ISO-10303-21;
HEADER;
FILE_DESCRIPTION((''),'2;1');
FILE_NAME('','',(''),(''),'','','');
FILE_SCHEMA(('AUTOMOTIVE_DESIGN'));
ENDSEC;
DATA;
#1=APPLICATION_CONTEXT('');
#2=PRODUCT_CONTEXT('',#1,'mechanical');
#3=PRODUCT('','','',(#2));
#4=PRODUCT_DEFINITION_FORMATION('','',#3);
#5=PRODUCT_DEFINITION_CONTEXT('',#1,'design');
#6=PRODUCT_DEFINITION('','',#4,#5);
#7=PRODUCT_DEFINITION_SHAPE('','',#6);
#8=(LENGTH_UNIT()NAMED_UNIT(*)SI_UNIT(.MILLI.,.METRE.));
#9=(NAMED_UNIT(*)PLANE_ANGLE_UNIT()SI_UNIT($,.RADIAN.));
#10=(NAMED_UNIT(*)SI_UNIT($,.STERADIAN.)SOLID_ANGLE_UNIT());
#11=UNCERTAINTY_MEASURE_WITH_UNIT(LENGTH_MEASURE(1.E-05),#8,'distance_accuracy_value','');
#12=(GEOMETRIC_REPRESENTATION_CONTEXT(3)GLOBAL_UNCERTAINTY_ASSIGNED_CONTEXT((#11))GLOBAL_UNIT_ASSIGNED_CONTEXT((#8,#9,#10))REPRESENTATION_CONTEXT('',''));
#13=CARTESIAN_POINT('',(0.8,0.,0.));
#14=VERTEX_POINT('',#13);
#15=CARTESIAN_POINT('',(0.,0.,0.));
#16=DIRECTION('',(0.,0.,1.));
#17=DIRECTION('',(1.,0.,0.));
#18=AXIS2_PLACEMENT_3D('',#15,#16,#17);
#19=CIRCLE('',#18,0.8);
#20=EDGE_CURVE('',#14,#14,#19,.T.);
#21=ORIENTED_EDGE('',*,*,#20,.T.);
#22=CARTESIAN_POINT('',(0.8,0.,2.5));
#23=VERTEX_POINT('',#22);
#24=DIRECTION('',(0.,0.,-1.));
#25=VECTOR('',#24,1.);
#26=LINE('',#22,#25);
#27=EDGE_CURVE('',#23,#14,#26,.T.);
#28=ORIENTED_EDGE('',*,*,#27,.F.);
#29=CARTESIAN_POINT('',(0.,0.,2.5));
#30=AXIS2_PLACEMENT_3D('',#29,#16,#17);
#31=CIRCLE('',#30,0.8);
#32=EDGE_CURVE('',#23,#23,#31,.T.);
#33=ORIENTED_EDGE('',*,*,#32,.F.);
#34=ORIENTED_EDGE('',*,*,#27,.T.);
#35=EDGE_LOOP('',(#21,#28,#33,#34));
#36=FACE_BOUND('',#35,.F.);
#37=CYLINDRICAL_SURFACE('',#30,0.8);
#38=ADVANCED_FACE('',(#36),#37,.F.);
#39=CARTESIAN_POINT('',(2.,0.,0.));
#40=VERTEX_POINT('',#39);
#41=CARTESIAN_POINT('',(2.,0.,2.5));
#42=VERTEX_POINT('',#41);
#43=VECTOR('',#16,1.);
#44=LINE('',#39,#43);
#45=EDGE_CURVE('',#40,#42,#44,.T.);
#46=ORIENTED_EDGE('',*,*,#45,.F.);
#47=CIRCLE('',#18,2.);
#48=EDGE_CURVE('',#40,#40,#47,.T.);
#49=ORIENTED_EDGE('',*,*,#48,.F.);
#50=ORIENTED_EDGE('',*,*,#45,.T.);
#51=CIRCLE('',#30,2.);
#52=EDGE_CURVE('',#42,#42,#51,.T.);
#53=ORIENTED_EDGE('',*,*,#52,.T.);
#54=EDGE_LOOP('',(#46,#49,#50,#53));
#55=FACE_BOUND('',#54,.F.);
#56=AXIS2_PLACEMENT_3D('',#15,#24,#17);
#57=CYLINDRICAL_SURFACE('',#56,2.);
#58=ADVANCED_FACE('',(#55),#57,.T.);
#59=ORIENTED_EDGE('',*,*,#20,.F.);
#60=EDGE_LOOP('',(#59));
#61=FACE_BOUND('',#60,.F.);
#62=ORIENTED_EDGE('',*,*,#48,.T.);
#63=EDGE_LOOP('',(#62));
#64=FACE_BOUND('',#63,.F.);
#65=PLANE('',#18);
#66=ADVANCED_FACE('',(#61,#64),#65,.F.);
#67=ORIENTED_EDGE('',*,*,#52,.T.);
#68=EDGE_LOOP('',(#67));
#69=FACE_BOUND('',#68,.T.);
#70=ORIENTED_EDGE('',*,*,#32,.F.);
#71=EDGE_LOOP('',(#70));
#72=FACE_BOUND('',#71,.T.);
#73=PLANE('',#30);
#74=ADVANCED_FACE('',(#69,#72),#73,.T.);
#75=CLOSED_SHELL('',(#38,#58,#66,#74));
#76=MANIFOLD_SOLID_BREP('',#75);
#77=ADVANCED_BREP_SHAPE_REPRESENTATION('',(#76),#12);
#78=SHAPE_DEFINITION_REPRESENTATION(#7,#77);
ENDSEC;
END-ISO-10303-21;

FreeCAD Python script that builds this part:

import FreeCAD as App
import Part
import Sketcher

V = App.Vector

doc = App.newDocument("Part")
params = doc.addObject("Spreadsheet::Sheet", "Params")
for row, (alias, value) in enumerate([
    ("sketch1_diameter", "4 mm"),
    ("pad1_length", "2.5 mm"),
    ("sketch2_diameter", "1.6 mm"),
    ("pocket1_length", "5 mm"),
], start=1):
    params.set(f"A{row}", alias)
    params.set(f"B{row}", "=" + value)
    params.setAlias(f"B{row}", alias)

body = doc.addObject("PartDesign::Body", "Body")

sketch1 = body.newObject("Sketcher::SketchObject", "Sketch")
sketch1.AttachmentSupport = (doc.getObject("XY_Plane"), [""])
sketch1.MapMode = "FlatFace"
sketch1.addGeometry(Part.Circle(V(0, 0, 0), V(0, 0, 1), 2), False)
sketch1.addConstraint([
    Sketcher.Constraint("Coincident", 0, 3, -1, 1),
    Sketcher.Constraint("Diameter", 0, 4.0),
])
sketch1.setExpression("Constraints[1]", "Params.sketch1_diameter")
pad1 = body.newObject("PartDesign::Pad", "Pad")
pad1.Profile = sketch1
pad1.setExpression("Length", "Params.pad1_length")

sketch2 = body.newObject("Sketcher::SketchObject", "Sketch001")
sketch2.AttachmentSupport = (doc.getObject("XY_Plane"), [""])
sketch2.MapMode = "FlatFace"
sketch2.AttachmentOffset = App.Placement(V(0, 0, 2.5), App.Rotation())
sketch2.addGeometry(Part.Circle(V(0, 0, 0), V(0, 0, 1), 0.8), False)
sketch2.addConstraint([
    Sketcher.Constraint("Coincident", 0, 3, -1, 1),
    Sketcher.Constraint("Diameter", 0, 1.6),
])
sketch2.setExpression("Constraints[1]", "Params.sketch2_diameter")
pocket1 = body.newObject("PartDesign::Pocket", "Pocket")
pocket1.Profile = sketch2
pocket1.setExpression("Length", "Params.pocket1_length")

doc.recompute()
